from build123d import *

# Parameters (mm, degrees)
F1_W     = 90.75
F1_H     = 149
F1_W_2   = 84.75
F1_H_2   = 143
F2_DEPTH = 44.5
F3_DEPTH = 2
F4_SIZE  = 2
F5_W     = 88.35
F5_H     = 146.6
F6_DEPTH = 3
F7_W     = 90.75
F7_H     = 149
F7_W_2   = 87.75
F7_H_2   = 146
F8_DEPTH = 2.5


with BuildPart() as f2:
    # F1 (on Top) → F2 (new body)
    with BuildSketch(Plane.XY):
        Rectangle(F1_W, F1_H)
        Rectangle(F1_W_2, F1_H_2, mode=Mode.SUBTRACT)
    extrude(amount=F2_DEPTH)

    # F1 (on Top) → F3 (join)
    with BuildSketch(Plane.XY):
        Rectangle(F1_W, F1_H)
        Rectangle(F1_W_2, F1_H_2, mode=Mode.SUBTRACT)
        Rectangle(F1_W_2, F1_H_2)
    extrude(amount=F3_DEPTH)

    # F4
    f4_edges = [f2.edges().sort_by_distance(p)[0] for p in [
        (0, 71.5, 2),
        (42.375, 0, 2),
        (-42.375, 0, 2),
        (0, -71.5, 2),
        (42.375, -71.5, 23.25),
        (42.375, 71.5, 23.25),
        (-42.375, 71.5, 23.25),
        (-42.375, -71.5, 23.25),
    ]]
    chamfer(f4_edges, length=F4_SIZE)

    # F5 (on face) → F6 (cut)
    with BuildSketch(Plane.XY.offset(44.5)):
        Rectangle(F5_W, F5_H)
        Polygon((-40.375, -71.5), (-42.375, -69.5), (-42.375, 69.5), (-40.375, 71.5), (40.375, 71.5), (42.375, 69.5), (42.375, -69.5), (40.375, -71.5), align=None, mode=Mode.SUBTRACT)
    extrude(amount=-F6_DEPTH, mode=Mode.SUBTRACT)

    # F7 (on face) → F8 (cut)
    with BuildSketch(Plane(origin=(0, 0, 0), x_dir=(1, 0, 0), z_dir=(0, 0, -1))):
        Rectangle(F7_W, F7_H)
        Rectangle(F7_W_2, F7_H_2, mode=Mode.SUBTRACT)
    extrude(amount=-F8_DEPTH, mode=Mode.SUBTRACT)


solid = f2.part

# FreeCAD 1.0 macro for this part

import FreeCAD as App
import Part
import Sketcher
Q = App.Units.Quantity


def edges_at(feature, points):
    """Names of the edges that pass closest to the given points."""
    edges = feature.Shape.Edges
    near = lambda p: min(range(len(edges)), key=lambda i: edges[i].distToShape(Part.Vertex(*p))[0])
    return sorted({f"Edge{near(p) + 1}" for p in points})

doc = App.newDocument("Part")
body = doc.addObject("PartDesign::Body", "Body")

sketch1 = body.newObject("Sketcher::SketchObject", "Sketch")
sketch1.AttachmentSupport = (doc.getObject("XY_Plane"), [""])
sketch1.MapMode = "FlatFace"
sketch1.addGeometry([
    Part.LineSegment(App.Vector(-45, 74, 0), App.Vector(-45, -74, 0)),
    Part.LineSegment(App.Vector(-45, -74, 0), App.Vector(45, -74, 0)),
    Part.LineSegment(App.Vector(45, -74, 0), App.Vector(45, 74, 0)),
    Part.LineSegment(App.Vector(45, 74, 0), App.Vector(-45, 74, 0)),
    Part.LineSegment(App.Vector(42, -72, 0), App.Vector(-42, -72, 0)),
    Part.LineSegment(App.Vector(-42, -72, 0), App.Vector(-42, 72, 0)),
    Part.LineSegment(App.Vector(-42, 72, 0), App.Vector(42, 72, 0)),
    Part.LineSegment(App.Vector(42, 72, 0), App.Vector(42, -72, 0)),
], False)
sketch1.addConstraint([
    Sketcher.Constraint("Coincident", 0, 2, 1, 1),
    Sketcher.Constraint("Coincident", 1, 2, 2, 1),
    Sketcher.Constraint("Coincident", 2, 2, 3, 1),
    Sketcher.Constraint("Coincident", 3, 2, 0, 1),
    Sketcher.Constraint("Coincident", 4, 2, 5, 1),
    Sketcher.Constraint("Coincident", 5, 2, 6, 1),
    Sketcher.Constraint("Coincident", 6, 2, 7, 1),
    Sketcher.Constraint("Coincident", 7, 2, 4, 1),
    Sketcher.Constraint("Vertical", 0),
    Sketcher.Constraint("Horizontal", 1),
    Sketcher.Constraint("Vertical", 2),
    Sketcher.Constraint("Horizontal", 3),
    Sketcher.Constraint("Horizontal", 4),
    Sketcher.Constraint("Vertical", 5),
    Sketcher.Constraint("Horizontal", 6),
    Sketcher.Constraint("Vertical", 7),
    Sketcher.Constraint("Symmetric", 0, 2, 2, 2, -1, 1),
    Sketcher.Constraint("Symmetric", 4, 2, 6, 2, -1, 1),
    Sketcher.Constraint("DistanceY", 0, 2, 0, 1, Q("149 mm")),
    Sketcher.Constraint("DistanceY", 5, 1, 5, 2, Q("143 mm")),
    Sketcher.Constraint("DistanceX", 0, 2, 4, 2, Q("3 mm")),
    Sketcher.Constraint("DistanceX", 1, 1, 1, 2, Q("90.75 mm")),
])
pad1 = body.newObject("PartDesign::Pad", "Pad")
pad1.Profile = sketch1
pad1.Length = 44.5

sketch2 = body.newObject("Sketcher::SketchObject", "Sketch001")
sketch2.AttachmentSupport = (doc.getObject("XY_Plane"), [""])
sketch2.MapMode = "FlatFace"
sketch2.addGeometry([
    Part.LineSegment(App.Vector(-45, 74, 0), App.Vector(-45, -74, 0)),
    Part.LineSegment(App.Vector(-45, -74, 0), App.Vector(45, -74, 0)),
    Part.LineSegment(App.Vector(45, -74, 0), App.Vector(45, 74, 0)),
    Part.LineSegment(App.Vector(45, 74, 0), App.Vector(-45, 74, 0)),
], False)
sketch2.addConstraint([
    Sketcher.Constraint("Coincident", 0, 2, 1, 1),
    Sketcher.Constraint("Coincident", 1, 2, 2, 1),
    Sketcher.Constraint("Coincident", 2, 2, 3, 1),
    Sketcher.Constraint("Coincident", 3, 2, 0, 1),
    Sketcher.Constraint("Vertical", 0),
    Sketcher.Constraint("Horizontal", 1),
    Sketcher.Constraint("Vertical", 2),
    Sketcher.Constraint("Horizontal", 3),
    Sketcher.Constraint("Symmetric", 0, 2, 2, 2, -1, 1),
    Sketcher.Constraint("DistanceY", 0, 2, 0, 1, Q("149 mm")),
    Sketcher.Constraint("DistanceX", 1, 1, 1, 2, Q("90.75 mm")),
])
pad2 = body.newObject("PartDesign::Pad", "Pad001")
pad2.Profile = sketch2
pad2.Length = 2
doc.recompute()

chamfer = body.newObject("PartDesign::Chamfer", "Chamfer")
chamfer.Base = (pad2, edges_at(pad2, [
    (0, 71.5, 2),
    (42.375, 0, 2),
    (-42.375, 0, 2),
    (0, -71.5, 2),
    (42.375, -71.5, 23.25),
    (42.375, 71.5, 23.25),
    (-42.375, 71.5, 23.25),
    (-42.375, -71.5, 23.25),
]))
chamfer.Size = 2

sketch3 = body.newObject("Sketcher::SketchObject", "Sketch002")
sketch3.AttachmentSupport = (doc.getObject("XY_Plane"), [""])
sketch3.MapMode = "FlatFace"
sketch3.AttachmentOffset = App.Placement(App.Vector(0, 0, 44.5), App.Rotation())
sketch3.addGeometry([
    Part.LineSegment(App.Vector(-44.2, 73.3, 0), App.Vector(-44.2, -73.3, 0)),
    Part.LineSegment(App.Vector(-44.2, -73.3, 0), App.Vector(44.2, -73.3, 0)),
    Part.LineSegment(App.Vector(44.2, -73.3, 0), App.Vector(44.2, 73.3, 0)),
    Part.LineSegment(App.Vector(44.2, 73.3, 0), App.Vector(-44.2, 73.3, 0)),
    Part.LineSegment(App.Vector(40.4, -71.5, 0), App.Vector(-40.4, -71.5, 0)),
    Part.LineSegment(App.Vector(-40.4, -71.5, 0), App.Vector(-42.4, -69.5, 0)),
    Part.LineSegment(App.Vector(-42.4, -69.5, 0), App.Vector(-42.4, 69.5, 0)),
    Part.LineSegment(App.Vector(-42.4, 69.5, 0), App.Vector(-40.4, 71.5, 0)),
    Part.LineSegment(App.Vector(-40.4, 71.5, 0), App.Vector(40.4, 71.5, 0)),
    Part.LineSegment(App.Vector(40.4, 71.5, 0), App.Vector(42.4, 69.5, 0)),
    Part.LineSegment(App.Vector(42.4, 69.5, 0), App.Vector(42.4, -69.5, 0)),
    Part.LineSegment(App.Vector(42.4, -69.5, 0), App.Vector(40.4, -71.5, 0)),
], False)
sketch3.addConstraint([
    Sketcher.Constraint("Coincident", 0, 2, 1, 1),
    Sketcher.Constraint("Coincident", 1, 2, 2, 1),
    Sketcher.Constraint("Coincident", 2, 2, 3, 1),
    Sketcher.Constraint("Coincident", 3, 2, 0, 1),
    Sketcher.Constraint("Coincident", 4, 2, 5, 1),
    Sketcher.Constraint("Coincident", 5, 2, 6, 1),
    Sketcher.Constraint("Coincident", 6, 2, 7, 1),
    Sketcher.Constraint("Coincident", 7, 2, 8, 1),
    Sketcher.Constraint("Coincident", 8, 2, 9, 1),
    Sketcher.Constraint("Coincident", 9, 2, 10, 1),
    Sketcher.Constraint("Coincident", 10, 2, 11, 1),
    Sketcher.Constraint("Coincident", 11, 2, 4, 1),
    Sketcher.Constraint("Vertical", 0),
    Sketcher.Constraint("Horizontal", 1),
    Sketcher.Constraint("Vertical", 2),
    Sketcher.Constraint("Horizontal", 3),
    Sketcher.Constraint("Horizontal", 4),
    Sketcher.Constraint("Vertical", 6),
    Sketcher.Constraint("Horizontal", 8),
    Sketcher.Constraint("Vertical", 10),
    Sketcher.Constraint("Symmetric", 0, 2, 2, 2, -1, 1),
    Sketcher.Constraint("Symmetric", 4, 2, 8, 2, -1, 1),
    Sketcher.Constraint("Symmetric", 5, 2, 9, 2, -1, 1),
    Sketcher.Constraint("Perpendicular", 5, 7),
    Sketcher.Constraint("Perpendicular", 9, 11),
    Sketcher.Constraint("Horizontal", 6, 2, 9, 2),
    Sketcher.Constraint("Horizontal", 5, 2, 10, 2),
    Sketcher.Constraint("Vertical", 4, 2, 7, 2),
    Sketcher.Constraint("DistanceY", 6, 1, 6, 2, Q("139 mm")),
    Sketcher.Constraint("DistanceY", 0, 2, 0, 1, Q("146.6 mm")),
    Sketcher.Constraint("DistanceX", 5, 2, 4, 2, Q("2 mm")),
    Sketcher.Constraint("DistanceX", 1, 1, 1, 2, Q("88.35 mm")),
    Sketcher.Constraint("DistanceX", 4, 2, 4, 1, Q("80.75 mm")),
])
pocket1 = body.newObject("PartDesign::Pocket", "Pocket")
pocket1.Profile = sketch3
pocket1.Length = 3

sketch4 = body.newObject("Sketcher::SketchObject", "Sketch003")
sketch4.AttachmentSupport = (doc.getObject("XY_Plane"), [""])
sketch4.MapMode = "FlatFace"
sketch4.addGeometry([
    Part.LineSegment(App.Vector(-45, -74, 0), App.Vector(-45, 74, 0)),
    Part.LineSegment(App.Vector(-45, 74, 0), App.Vector(45, 74, 0)),
    Part.LineSegment(App.Vector(45, 74, 0), App.Vector(45, -74, 0)),
    Part.LineSegment(App.Vector(45, -74, 0), App.Vector(-45, -74, 0)),
    Part.LineSegment(App.Vector(44, 73, 0), App.Vector(-44, 73, 0)),
    Part.LineSegment(App.Vector(-44, 73, 0), App.Vector(-44, -73, 0)),
    Part.LineSegment(App.Vector(-44, -73, 0), App.Vector(44, -73, 0)),
    Part.LineSegment(App.Vector(44, -73, 0), App.Vector(44, 73, 0)),
], False)
sketch4.addConstraint([
    Sketcher.Constraint("Coincident", 0, 2, 1, 1),
    Sketcher.Constraint("Coincident", 1, 2, 2, 1),
    Sketcher.Constraint("Coincident", 2, 2, 3, 1),
    Sketcher.Constraint("Coincident", 3, 2, 0, 1),
    Sketcher.Constraint("Coincident", 4, 2, 5, 1),
    Sketcher.Constraint("Coincident", 5, 2, 6, 1),
    Sketcher.Constraint("Coincident", 6, 2, 7, 1),
    Sketcher.Constraint("Coincident", 7, 2, 4, 1),
    Sketcher.Constraint("Vertical", 0),
    Sketcher.Constraint("Horizontal", 1),
    Sketcher.Constraint("Vertical", 2),
    Sketcher.Constraint("Horizontal", 3),
    Sketcher.Constraint("Horizontal", 4),
    Sketcher.Constraint("Vertical", 5),
    Sketcher.Constraint("Horizontal", 6),
    Sketcher.Constraint("Vertical", 7),
    Sketcher.Constraint("Symmetric", 0, 2, 2, 2, -1, 1),
    Sketcher.Constraint("Symmetric", 4, 2, 6, 2, -1, 1),
    Sketcher.Constraint("DistanceY", 0, 1, 0, 2, Q("149 mm")),
    Sketcher.Constraint("DistanceY", 5, 2, 5, 1, Q("146 mm")),
    Sketcher.Constraint("DistanceX", 1, 1, 1, 2, Q("90.75 mm")),
    Sketcher.Constraint("DistanceX", 4, 2, 4, 1, Q("87.75 mm")),
])
pocket2 = body.newObject("PartDesign::Pocket", "Pocket001")
pocket2.Profile = sketch4
pocket2.Length = 2.5
pocket2.Reversed = True

doc.recompute()
